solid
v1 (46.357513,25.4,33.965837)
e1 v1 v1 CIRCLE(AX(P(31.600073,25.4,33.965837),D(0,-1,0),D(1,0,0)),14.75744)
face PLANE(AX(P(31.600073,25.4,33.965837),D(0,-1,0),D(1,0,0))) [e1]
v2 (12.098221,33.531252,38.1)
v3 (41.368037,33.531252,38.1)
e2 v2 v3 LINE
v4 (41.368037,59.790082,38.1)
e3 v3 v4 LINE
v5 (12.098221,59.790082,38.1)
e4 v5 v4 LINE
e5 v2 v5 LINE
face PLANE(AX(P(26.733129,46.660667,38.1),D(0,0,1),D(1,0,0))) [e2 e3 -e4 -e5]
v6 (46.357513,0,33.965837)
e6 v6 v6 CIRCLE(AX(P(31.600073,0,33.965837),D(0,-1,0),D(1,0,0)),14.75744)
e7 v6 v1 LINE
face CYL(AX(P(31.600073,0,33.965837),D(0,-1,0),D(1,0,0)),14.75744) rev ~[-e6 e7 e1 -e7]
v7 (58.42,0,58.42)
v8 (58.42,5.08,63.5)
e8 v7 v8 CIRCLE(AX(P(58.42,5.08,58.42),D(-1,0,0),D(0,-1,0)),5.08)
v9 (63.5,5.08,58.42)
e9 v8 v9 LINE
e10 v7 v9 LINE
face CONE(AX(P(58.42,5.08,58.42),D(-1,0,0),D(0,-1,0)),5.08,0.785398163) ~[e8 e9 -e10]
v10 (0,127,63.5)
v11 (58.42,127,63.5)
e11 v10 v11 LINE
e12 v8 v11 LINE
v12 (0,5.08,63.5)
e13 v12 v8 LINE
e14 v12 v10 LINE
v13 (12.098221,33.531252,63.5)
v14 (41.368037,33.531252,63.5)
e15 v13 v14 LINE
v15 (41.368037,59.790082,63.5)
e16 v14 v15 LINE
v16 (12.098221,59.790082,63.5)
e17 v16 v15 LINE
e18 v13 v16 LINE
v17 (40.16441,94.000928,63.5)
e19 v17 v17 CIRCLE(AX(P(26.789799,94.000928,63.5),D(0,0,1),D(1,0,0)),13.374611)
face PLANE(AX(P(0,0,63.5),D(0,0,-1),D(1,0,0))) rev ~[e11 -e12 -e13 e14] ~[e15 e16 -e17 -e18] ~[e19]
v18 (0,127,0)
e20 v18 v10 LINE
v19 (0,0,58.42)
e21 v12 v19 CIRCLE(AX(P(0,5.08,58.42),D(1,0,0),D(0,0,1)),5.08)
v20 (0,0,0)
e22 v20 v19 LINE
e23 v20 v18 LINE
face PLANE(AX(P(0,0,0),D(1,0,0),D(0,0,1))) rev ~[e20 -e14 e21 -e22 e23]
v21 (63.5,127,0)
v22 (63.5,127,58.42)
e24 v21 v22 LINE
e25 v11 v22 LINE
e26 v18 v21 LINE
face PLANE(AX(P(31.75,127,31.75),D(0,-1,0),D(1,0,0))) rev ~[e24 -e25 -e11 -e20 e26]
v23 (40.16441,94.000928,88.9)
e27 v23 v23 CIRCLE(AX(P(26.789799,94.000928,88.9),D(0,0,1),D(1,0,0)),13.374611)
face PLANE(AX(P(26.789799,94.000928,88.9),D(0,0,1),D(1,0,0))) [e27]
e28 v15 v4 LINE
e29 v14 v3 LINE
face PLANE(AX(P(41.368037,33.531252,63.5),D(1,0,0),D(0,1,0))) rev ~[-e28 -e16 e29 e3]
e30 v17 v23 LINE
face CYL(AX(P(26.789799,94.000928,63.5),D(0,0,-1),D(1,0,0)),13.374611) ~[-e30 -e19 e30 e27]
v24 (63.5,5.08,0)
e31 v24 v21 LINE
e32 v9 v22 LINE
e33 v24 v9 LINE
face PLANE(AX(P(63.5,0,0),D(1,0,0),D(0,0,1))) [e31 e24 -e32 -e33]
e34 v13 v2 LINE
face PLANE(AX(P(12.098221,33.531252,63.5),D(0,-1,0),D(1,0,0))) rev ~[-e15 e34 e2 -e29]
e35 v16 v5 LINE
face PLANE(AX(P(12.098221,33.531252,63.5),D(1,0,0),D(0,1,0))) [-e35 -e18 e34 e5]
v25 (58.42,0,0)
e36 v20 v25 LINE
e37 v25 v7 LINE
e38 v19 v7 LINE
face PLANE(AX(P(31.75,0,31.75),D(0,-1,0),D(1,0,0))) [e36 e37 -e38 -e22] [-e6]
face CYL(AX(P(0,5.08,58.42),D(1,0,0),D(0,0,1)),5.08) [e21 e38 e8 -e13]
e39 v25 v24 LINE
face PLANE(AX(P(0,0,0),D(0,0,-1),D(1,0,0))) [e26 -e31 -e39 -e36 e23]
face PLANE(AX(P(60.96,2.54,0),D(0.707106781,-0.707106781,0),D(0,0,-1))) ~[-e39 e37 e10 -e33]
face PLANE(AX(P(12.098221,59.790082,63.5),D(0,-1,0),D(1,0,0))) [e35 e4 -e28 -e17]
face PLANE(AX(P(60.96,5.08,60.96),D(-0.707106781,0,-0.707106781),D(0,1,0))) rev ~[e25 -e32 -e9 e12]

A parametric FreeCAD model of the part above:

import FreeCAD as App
import Part
import Sketcher
Q = App.Units.Quantity


def edges_at(feature, points):
    """Names of the edges that pass closest to the given points."""
    edges = feature.Shape.Edges
    near = lambda p: min(range(len(edges)), key=lambda i: edges[i].distToShape(Part.Vertex(*p))[0])
    return sorted({f"Edge{near(p) + 1}" for p in points})


def add_polygon(sketch, points):
    """Adds a closed chain of lines whose ends are joined by coincident constraints."""
    first, n = sketch.GeometryCount, len(points)
    for a, b in zip(points, points[1:] + points[:1]):
        sketch.addGeometry(Part.LineSegment(App.Vector(*a, 0), App.Vector(*b, 0)), False)
    for i in range(n):
        sketch.addConstraint(Sketcher.Constraint("Coincident", first + i, 2, first + (i + 1) % n, 1))

doc = App.newDocument("Part")
body = doc.addObject("PartDesign::Body", "Body")

# Sketch on XZ plane
sketch1 = body.newObject("Sketcher::SketchObject", "Sketch")
sketch1.AttachmentSupport = (doc.getObject("XZ_Plane"), [""])
sketch1.MapMode = "FlatFace"
add_polygon(sketch1, [(0, 64), (0, 0), (64, 0), (64, 64)])  # lines 0-3
sketch1.addConstraint(Sketcher.Constraint("Vertical", 0))
sketch1.addConstraint(Sketcher.Constraint("Horizontal", 1))
sketch1.addConstraint(Sketcher.Constraint("Vertical", 2))
sketch1.addConstraint(Sketcher.Constraint("Horizontal", 3))
sketch1.addConstraint(Sketcher.Constraint("Coincident", 0, 2, -1, 1))
sketch1.addConstraint(Sketcher.Constraint("Equal", 3, 0))
sketch1.addConstraint(Sketcher.Constraint("DistanceX", 1, 1, 1, 2, Q("2.5 in")))
pad1 = body.newObject("PartDesign::Pad", "Pad")
pad1.Profile = sketch1
pad1.Length = Q("5 in")
pad1.Reversed = True
doc.recompute()

fillet = body.newObject("PartDesign::Fillet", "Fillet")
fillet.Base = (pad1, edges_at(pad1, [(31.75, 0, 63.5)]))
fillet.Radius = Q("0.2 in")
doc.recompute()

chamfer = body.newObject("PartDesign::Chamfer", "Chamfer")
chamfer.Base = (fillet, edges_at(fillet, [(63.5, 66.04, 63.5), (63.5, 0, 29.21)]))
chamfer.Size = Q("0.2 in")

# Sketch on XY plane
sketch2 = body.newObject("Sketcher::SketchObject", "Sketch001")
sketch2.AttachmentSupport = (doc.getObject("XY_Plane"), [""])
sketch2.MapMode = "FlatFace"
sketch2.AttachmentOffset = App.Placement(App.Vector(0, 0, 2.5 * 25.4), App.Rotation())
add_polygon(sketch2, [(12, 60), (12, 34), (41, 34), (41, 60)])  # lines 0-3
sketch2.addConstraint(Sketcher.Constraint("Vertical", 0))
sketch2.addConstraint(Sketcher.Constraint("Horizontal", 1))
sketch2.addConstraint(Sketcher.Constraint("Vertical", 2))
sketch2.addConstraint(Sketcher.Constraint("Horizontal", 3))
sketch2.addConstraint(Sketcher.Constraint("DistanceY", 0, 2, 0, 1, 26.25883))
sketch2.addConstraint(Sketcher.Constraint("DistanceX", 1, 1, 1, 2, 29.269816))
sketch2.addConstraint(Sketcher.Constraint("DistanceX", -1, 1, 0, 2, 12.098221))
sketch2.addConstraint(Sketcher.Constraint("DistanceY", -1, 1, 2, 2, 59.790082))
pocket1 = body.newObject("PartDesign::Pocket", "Pocket")
pocket1.Profile = sketch2
pocket1.Length = Q("1 in")

# Sketch on XY plane
sketch3 = body.newObject("Sketcher::SketchObject", "Sketch002")
sketch3.AttachmentSupport = (doc.getObject("XY_Plane"), [""])
sketch3.MapMode = "FlatFace"
sketch3.AttachmentOffset = App.Placement(App.Vector(0, 0, 2.5 * 25.4), App.Rotation())
sketch3.addGeometry(Part.Circle(App.Vector(27, 94, 0), App.Vector(0, 0, 1), 13), False)
sketch3.addConstraint(Sketcher.Constraint("Diameter", 0, 26.749222))
sketch3.addConstraint(Sketcher.Constraint("DistanceX", -1, 1, 0, 3, 26.789799))
sketch3.addConstraint(Sketcher.Constraint("DistanceY", -1, 1, 0, 3, 94.000928))
pad2 = body.newObject("PartDesign::Pad", "Pad001")
pad2.Profile = sketch3
pad2.Length = Q("1 in")

# Sketch on XZ plane
sketch4 = body.newObject("Sketcher::SketchObject", "Sketch003")
sketch4.AttachmentSupport = (doc.getObject("XZ_Plane"), [""])
sketch4.MapMode = "FlatFace"
sketch4.addGeometry(Part.Circle(App.Vector(32, 34, 0), App.Vector(0, 0, 1), 15), False)
sketch4.addConstraint(Sketcher.Constraint("Diameter", 0, 29.51488))
sketch4.addConstraint(Sketcher.Constraint("DistanceX", -1, 1, 0, 3, 31.600073))
sketch4.addConstraint(Sketcher.Constraint("DistanceY", -1, 1, 0, 3, 33.965837))
pocket2 = body.newObject("PartDesign::Pocket", "Pocket001")
pocket2.Profile = sketch4
pocket2.Length = Q("1 in")

doc.recompute()
